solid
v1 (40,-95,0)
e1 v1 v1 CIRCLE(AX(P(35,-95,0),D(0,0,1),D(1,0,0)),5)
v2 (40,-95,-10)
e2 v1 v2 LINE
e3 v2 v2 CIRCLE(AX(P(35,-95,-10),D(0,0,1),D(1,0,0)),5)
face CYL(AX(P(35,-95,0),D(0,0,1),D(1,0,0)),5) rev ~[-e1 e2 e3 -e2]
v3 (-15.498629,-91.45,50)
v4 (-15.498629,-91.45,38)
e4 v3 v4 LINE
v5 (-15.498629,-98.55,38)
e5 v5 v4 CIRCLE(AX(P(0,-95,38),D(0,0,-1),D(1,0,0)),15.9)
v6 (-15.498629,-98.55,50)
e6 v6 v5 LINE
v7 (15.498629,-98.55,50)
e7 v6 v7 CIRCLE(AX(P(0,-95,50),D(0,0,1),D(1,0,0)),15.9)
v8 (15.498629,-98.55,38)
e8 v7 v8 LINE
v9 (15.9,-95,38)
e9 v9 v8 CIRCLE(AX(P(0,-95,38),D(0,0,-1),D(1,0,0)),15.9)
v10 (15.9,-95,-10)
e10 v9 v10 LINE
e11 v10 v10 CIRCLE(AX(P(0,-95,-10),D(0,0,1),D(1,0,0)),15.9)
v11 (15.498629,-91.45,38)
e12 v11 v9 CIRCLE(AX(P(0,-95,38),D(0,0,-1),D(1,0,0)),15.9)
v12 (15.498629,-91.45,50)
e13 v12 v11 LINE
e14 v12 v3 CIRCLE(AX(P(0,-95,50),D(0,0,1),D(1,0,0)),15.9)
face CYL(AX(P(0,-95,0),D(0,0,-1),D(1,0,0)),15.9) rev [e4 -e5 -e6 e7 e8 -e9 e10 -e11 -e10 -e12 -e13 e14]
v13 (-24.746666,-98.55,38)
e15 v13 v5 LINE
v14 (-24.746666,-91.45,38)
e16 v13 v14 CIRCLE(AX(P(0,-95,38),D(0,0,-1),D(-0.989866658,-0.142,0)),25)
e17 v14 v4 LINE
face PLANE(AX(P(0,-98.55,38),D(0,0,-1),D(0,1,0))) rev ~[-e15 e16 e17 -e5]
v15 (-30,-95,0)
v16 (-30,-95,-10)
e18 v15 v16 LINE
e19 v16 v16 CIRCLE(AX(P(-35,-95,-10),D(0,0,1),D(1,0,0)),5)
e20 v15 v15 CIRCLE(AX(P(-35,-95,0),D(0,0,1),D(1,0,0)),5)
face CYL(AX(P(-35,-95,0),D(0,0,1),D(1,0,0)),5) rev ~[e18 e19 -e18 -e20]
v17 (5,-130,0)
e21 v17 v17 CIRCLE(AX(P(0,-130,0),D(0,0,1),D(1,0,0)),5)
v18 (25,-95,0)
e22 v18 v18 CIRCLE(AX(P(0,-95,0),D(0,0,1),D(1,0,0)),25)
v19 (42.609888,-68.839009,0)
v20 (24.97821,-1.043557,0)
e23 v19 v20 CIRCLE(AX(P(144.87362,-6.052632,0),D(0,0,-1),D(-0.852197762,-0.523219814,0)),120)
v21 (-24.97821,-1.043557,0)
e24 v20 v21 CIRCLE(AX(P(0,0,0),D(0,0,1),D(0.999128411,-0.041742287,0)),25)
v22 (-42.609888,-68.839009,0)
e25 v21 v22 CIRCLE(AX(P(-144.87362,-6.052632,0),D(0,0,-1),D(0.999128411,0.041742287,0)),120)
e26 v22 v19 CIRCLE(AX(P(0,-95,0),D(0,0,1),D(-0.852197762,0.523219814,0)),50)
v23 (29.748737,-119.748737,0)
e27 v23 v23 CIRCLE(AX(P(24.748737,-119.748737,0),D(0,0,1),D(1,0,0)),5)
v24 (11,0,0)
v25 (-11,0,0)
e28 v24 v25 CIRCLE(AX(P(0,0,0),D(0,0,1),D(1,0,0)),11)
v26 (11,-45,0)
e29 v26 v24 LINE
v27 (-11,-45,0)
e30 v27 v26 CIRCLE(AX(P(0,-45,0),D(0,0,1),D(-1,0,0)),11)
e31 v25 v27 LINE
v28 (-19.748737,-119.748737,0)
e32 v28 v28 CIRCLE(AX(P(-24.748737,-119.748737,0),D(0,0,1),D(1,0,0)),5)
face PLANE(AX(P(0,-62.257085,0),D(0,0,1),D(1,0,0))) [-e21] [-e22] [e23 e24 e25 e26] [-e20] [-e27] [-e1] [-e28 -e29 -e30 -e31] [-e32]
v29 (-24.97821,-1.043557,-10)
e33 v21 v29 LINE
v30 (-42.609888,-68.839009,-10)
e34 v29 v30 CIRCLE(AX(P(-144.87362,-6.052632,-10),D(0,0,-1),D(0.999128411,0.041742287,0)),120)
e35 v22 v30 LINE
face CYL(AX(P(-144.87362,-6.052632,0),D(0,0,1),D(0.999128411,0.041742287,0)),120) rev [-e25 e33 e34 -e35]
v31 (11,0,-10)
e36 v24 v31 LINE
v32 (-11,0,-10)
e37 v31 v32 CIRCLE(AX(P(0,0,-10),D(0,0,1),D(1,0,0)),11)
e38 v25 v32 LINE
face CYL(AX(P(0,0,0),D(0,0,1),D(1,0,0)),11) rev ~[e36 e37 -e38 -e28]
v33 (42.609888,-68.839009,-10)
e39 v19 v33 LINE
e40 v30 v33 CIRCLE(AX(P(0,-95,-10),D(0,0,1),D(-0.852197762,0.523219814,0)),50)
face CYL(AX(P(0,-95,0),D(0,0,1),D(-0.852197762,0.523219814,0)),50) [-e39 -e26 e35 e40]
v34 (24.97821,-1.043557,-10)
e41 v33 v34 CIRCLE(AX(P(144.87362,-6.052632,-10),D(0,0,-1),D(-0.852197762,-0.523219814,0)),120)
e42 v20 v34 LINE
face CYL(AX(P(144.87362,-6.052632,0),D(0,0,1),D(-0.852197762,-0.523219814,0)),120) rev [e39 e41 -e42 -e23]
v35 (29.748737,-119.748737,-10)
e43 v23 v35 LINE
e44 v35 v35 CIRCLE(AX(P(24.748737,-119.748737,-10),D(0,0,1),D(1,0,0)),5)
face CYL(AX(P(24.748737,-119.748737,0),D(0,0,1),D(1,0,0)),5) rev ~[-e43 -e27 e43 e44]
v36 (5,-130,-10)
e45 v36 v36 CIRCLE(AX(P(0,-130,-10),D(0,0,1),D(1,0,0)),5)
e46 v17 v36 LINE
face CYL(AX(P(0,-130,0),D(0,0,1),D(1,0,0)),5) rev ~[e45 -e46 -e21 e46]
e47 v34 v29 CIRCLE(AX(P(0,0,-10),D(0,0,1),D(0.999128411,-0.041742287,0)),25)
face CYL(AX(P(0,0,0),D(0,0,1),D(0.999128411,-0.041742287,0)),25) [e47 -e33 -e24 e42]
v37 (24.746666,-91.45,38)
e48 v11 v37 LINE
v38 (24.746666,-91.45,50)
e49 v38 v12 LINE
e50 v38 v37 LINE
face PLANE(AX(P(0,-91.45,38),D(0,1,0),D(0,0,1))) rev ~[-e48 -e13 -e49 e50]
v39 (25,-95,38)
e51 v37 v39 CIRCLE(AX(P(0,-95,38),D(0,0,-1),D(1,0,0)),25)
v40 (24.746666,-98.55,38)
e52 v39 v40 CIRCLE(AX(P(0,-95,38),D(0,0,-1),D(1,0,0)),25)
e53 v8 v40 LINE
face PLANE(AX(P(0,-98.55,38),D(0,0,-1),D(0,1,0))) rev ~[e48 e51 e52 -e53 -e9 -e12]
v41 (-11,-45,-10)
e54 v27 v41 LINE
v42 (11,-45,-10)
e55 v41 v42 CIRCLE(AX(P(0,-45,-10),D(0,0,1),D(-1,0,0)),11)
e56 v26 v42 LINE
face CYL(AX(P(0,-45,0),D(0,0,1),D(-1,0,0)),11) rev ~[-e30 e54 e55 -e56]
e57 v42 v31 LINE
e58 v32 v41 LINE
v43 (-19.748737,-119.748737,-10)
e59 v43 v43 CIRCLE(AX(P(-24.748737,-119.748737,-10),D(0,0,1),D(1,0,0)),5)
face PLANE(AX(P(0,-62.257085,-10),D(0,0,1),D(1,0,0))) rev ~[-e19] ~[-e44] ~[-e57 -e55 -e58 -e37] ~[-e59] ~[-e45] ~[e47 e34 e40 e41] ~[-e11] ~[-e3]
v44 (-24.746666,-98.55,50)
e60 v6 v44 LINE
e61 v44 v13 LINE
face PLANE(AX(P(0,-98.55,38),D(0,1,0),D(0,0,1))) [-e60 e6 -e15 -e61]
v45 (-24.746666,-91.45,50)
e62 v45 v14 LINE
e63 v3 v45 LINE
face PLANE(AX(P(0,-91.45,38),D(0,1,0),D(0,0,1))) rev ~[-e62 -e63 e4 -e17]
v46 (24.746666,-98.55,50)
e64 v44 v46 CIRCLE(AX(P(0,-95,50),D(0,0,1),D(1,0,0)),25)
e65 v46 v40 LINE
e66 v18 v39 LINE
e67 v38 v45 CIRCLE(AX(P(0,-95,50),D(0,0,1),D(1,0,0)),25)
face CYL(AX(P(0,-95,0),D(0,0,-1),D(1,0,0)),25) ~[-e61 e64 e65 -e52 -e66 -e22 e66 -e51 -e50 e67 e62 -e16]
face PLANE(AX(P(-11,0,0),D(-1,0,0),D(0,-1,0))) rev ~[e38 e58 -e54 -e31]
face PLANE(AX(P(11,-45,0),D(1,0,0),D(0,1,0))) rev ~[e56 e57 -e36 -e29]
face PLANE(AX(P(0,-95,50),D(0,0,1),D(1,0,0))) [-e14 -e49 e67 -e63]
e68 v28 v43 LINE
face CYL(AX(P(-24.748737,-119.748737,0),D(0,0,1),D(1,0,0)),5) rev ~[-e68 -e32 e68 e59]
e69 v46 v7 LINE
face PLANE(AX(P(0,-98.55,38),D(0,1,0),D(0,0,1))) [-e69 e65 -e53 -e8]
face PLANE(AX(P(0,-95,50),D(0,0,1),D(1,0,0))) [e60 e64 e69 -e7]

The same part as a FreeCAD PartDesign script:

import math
import FreeCAD as App
import Part
import Sketcher
from FreeCAD import Vector
Q = App.Units.Quantity


def add_polygon(sketch, points):
    """Adds a closed chain of lines whose ends are joined by coincident constraints."""
    first, n = sketch.GeometryCount, len(points)
    for a, b in zip(points, points[1:] + points[:1]):
        sketch.addGeometry(Part.LineSegment(App.Vector(*a, 0), App.Vector(*b, 0)), False)
    for i in range(n):
        sketch.addConstraint(Sketcher.Constraint("Coincident", first + i, 2, first + (i + 1) % n, 1))

doc = App.newDocument("Part")
body = doc.addObject("PartDesign::Body", "Body")

# Sketch on XY plane
sketch1 = body.newObject("Sketcher::SketchObject", "Sketch")
sketch1.AttachmentSupport = (doc.getObject("XY_Plane"), [""])
sketch1.MapMode = "FlatFace"
sketch1.addGeometry([
    Part.ArcOfCircle(Part.Circle(Vector(144.87362, -6.052632, 0), Vector(0, 0, 1), 120), math.radians(177.607648), math.radians(211.548479)),  # 0
    Part.ArcOfCircle(Part.Circle(Vector(0, 0, 0), Vector(0, 0, 1), 25), math.radians(-2.392352), math.radians(182.392352)),  # 1
    Part.ArcOfCircle(Part.Circle(Vector(-144.87362, -6.052632, 0), Vector(0, 0, 1), 120), math.radians(-31.548479), math.radians(2.392352)),  # 2
    Part.ArcOfCircle(Part.Circle(Vector(0, -95, 0), Vector(0, 0, 1), 50), math.radians(148.451521), math.radians(391.548479)),  # 3
    Part.Circle(Vector(0, -95, 0), Vector(0, 0, 1), 15.9),  # 4
], False)
sketch1.addConstraint([
    Sketcher.Constraint("Tangent", 0, 1, 1, 1),
    Sketcher.Constraint("Tangent", 1, 2, 2, 2),
    Sketcher.Constraint("Tangent", 2, 1, 3, 1),
    Sketcher.Constraint("Tangent", 3, 2, 0, 2),
    Sketcher.Constraint("Coincident", 1, 3, -1, 1),
    Sketcher.Constraint("Coincident", 4, 3, 3, 3),
    Sketcher.Constraint("Equal", 0, 2),
    Sketcher.Constraint("PointOnObject", 3, 3, -2),
    Sketcher.Constraint("Radius", 0, Q("120 mm")),
    Sketcher.Constraint("Radius", 1, Q("25 mm")),
    Sketcher.Constraint("Radius", 3, Q("50 mm")),
    Sketcher.Constraint("Diameter", 4, Q("31.8 mm")),
    Sketcher.Constraint("DistanceY", 3, 3, -1, 1, Q("95 mm")),
])
pad1 = body.newObject("PartDesign::Pad", "Pad")
pad1.Profile = sketch1
pad1.Length = 10
pad1.Reversed = True

# Sketch on XY plane
sketch2 = body.newObject("Sketcher::SketchObject", "Sketch001")
sketch2.AttachmentSupport = (doc.getObject("XY_Plane"), [""])
sketch2.MapMode = "FlatFace"
sketch2.addGeometry([
    Part.LineSegment(Vector(-11, 0, 0), Vector(-11, -45, 0)),
    Part.ArcOfCircle(Part.Circle(Vector(0, -45, 0), Vector(0, 0, 1), 11), math.radians(180), math.radians(360)),
    Part.LineSegment(Vector(11, -45, 0), Vector(11, 0, 0)),
    Part.ArcOfCircle(Part.Circle(Vector(0, 0, 0), Vector(0, 0, 1), 11), math.radians(0), math.radians(180)),
], False)
sketch2.addConstraint([
    Sketcher.Constraint("Tangent", 0, 2, 1, 1),
    Sketcher.Constraint("Tangent", 1, 2, 2, 1),
    Sketcher.Constraint("Tangent", 2, 2, 3, 1),
    Sketcher.Constraint("Tangent", 3, 2, 0, 1),
    Sketcher.Constraint("Vertical", 0),
    Sketcher.Constraint("Vertical", 2),
    Sketcher.Constraint("Coincident", 3, 3, -1, 1),
    Sketcher.Constraint("Radius", 1, Q("11 mm")),
    Sketcher.Constraint("DistanceY", 0, 2, 0, 1, Q("45 mm")),
])
pocket1 = body.newObject("PartDesign::Pocket", "Pocket")
pocket1.Profile = sketch2
pocket1.Type = "ThroughAll"

# Sketch on XY plane
sketch3 = body.newObject("Sketcher::SketchObject", "Sketch002")
sketch3.AttachmentSupport = (doc.getObject("XY_Plane"), [""])
sketch3.MapMode = "FlatFace"
sketch3.addGeometry([
    Part.Circle(Vector(-35, -95, 0), Vector(0, 0, 1), 5),  # 0
    Part.Circle(Vector(-24.748737, -119.748737, 0), Vector(0, 0, 1), 5),  # 1
    Part.Circle(Vector(0, -130, 0), Vector(0, 0, 1), 5),  # 2
    Part.Circle(Vector(24.748737, -119.748737, 0), Vector(0, 0, 1), 5),  # 3
    Part.Circle(Vector(35, -95, 0), Vector(0, 0, 1), 5),  # 4
], False)
sketch3.addConstraint([
    Sketcher.Constraint("Equal", 0, 1),
    Sketcher.Constraint("Equal", 1, 2),
    Sketcher.Constraint("Equal", 2, 3),
    Sketcher.Constraint("Equal", 3, 4),
    Sketcher.Constraint("Symmetric", 1, 3, 3, 3, -2),
    Sketcher.Constraint("Symmetric", 0, 3, 4, 3, -2),
    Sketcher.Constraint("PointOnObject", 2, 3, -2),
    Sketcher.Constraint("Diameter", 0, Q("10 mm")),
    Sketcher.Constraint("DistanceX", 0, 3, -1, 1, Q("35 mm")),
    Sketcher.Constraint("DistanceY", 0, 3, -1, 1, Q("95 mm")),
    Sketcher.Constraint("DistanceY", 2, 3, -1, 1, Q("130 mm")),
    Sketcher.Constraint("DistanceX", 1, 3, -1, 1, Q("24.748737 mm")),
    Sketcher.Constraint("DistanceY", 1, 3, -1, 1, Q("119.748737 mm")),
])
pocket2 = body.newObject("PartDesign::Pocket", "Pocket001")
pocket2.Profile = sketch3
pocket2.Type = "ThroughAll"

# Sketch on XY plane
sketch4 = body.newObject("Sketcher::SketchObject", "Sketch003")
sketch4.AttachmentSupport = (doc.getObject("XY_Plane"), [""])
sketch4.MapMode = "FlatFace"
sketch4.addGeometry([
    Part.Circle(Vector(0, -95, 0), Vector(0, 0, 1), 25),
    Part.Circle(Vector(0, -95, 0), Vector(0, 0, 1), 15.9),
], False)
sketch4.addConstraint([
    Sketcher.Constraint("Coincident", 1, 3, 0, 3),
    Sketcher.Constraint("PointOnObject", 0, 3, -2),
    Sketcher.Constraint("Diameter", 0, Q("50 mm")),
    Sketcher.Constraint("Diameter", 1, Q("31.8 mm")),
    Sketcher.Constraint("DistanceY", 0, 3, -1, 1, Q("95 mm")),
])
pad2 = body.newObject("PartDesign::Pad", "Pad001")
pad2.Profile = sketch4
pad2.Length = 50

# Sketch on YZ plane
sketch5 = body.newObject("Sketcher::SketchObject", "Sketch004")
sketch5.AttachmentSupport = (doc.getObject("YZ_Plane"), [""])
sketch5.MapMode = "FlatFace"
add_polygon(sketch5, [(-98.55, 50), (-98.55, 38), (-91.45, 38), (-91.45, 50)])  # lines 0-3
sketch5.addConstraint([
    Sketcher.Constraint("Vertical", 0),
    Sketcher.Constraint("Horizontal", 1),
    Sketcher.Constraint("Vertical", 2),
    Sketcher.Constraint("Horizontal", 3),
    Sketcher.Constraint("DistanceY", 0, 2, 0, 1, Q("12 mm")),
    Sketcher.Constraint("DistanceX", 1, 1, 1, 2, Q("7.1 mm")),
    Sketcher.Constraint("DistanceY", -1, 1, 0, 2, Q("38 mm")),
    Sketcher.Constraint("DistanceX", 0, 2, -1, 1, Q("98.55 mm")),
])
pocket3 = body.newObject("PartDesign::Pocket", "Pocket002")
pocket3.Profile = sketch5
pocket3.Length = 50
pocket3.Midplane = True

doc.recompute()
